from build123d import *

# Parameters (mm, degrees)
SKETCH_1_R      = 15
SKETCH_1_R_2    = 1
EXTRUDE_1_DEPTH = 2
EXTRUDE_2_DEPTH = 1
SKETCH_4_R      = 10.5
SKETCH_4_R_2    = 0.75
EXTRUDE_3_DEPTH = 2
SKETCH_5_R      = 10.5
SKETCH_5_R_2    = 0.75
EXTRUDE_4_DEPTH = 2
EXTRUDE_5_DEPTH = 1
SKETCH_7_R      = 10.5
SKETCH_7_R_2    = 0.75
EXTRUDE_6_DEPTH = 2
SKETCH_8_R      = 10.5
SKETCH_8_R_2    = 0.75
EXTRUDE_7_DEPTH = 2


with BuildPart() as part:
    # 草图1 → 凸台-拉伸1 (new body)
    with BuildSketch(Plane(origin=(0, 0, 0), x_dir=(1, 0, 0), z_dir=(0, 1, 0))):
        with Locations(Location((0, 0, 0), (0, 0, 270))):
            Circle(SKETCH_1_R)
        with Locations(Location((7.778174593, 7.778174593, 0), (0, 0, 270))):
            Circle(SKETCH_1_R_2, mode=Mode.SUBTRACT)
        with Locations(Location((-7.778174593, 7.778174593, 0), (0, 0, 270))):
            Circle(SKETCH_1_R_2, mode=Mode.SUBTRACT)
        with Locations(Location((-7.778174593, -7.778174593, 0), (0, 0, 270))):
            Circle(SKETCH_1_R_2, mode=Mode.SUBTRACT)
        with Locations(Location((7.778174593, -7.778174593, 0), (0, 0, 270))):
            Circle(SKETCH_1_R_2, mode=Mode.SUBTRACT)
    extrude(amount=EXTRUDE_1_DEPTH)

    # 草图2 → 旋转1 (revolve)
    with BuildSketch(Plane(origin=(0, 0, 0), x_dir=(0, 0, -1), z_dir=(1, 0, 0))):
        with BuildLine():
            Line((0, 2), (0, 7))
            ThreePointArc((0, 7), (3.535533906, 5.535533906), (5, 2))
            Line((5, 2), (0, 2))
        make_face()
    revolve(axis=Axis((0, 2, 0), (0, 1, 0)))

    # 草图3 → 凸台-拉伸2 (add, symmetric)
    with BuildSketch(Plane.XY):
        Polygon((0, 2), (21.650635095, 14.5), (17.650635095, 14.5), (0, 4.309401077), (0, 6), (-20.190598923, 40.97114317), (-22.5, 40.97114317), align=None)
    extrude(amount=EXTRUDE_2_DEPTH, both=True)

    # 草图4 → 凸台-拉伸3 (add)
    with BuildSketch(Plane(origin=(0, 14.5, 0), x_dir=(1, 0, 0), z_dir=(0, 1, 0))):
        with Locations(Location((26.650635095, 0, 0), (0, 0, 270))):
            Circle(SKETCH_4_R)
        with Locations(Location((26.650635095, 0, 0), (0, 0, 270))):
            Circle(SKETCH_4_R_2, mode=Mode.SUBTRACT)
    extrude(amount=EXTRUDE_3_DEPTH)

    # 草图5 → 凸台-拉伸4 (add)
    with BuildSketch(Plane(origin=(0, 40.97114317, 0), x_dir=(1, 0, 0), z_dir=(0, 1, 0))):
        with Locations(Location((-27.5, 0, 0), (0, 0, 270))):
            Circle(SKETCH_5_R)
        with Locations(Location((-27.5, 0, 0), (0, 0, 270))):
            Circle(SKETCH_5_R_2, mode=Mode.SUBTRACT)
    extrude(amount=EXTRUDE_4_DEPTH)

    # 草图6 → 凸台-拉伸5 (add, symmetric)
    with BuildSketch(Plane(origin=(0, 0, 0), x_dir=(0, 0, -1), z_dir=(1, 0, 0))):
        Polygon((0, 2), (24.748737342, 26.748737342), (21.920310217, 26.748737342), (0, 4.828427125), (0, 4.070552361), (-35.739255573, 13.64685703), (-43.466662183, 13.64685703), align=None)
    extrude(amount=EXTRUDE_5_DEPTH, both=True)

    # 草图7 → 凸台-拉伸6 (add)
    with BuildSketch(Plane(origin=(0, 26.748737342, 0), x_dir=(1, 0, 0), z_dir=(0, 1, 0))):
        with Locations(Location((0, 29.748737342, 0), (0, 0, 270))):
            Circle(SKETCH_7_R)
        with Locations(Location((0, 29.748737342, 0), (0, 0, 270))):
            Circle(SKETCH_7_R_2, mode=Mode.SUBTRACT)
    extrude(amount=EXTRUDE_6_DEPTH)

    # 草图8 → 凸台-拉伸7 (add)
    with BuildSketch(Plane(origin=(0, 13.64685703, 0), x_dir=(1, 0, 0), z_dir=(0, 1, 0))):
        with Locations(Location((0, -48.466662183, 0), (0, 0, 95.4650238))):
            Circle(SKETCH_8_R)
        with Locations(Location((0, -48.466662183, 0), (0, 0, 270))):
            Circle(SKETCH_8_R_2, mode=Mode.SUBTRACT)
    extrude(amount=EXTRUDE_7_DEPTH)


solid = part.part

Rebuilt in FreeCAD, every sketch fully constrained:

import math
import FreeCAD as App
import Part
import Sketcher
Q = App.Units.Quantity


def add_polygon(sketch, points):
    """Adds a closed chain of lines whose ends are joined by coincident constraints."""
    first, n = sketch.GeometryCount, len(points)
    for a, b in zip(points, points[1:] + points[:1]):
        sketch.addGeometry(Part.LineSegment(App.Vector(*a, 0), App.Vector(*b, 0)), False)
    for i in range(n):
        sketch.addConstraint(Sketcher.Constraint("Coincident", first + i, 2, first + (i + 1) % n, 1))

doc = App.newDocument("Part")
body = doc.addObject("PartDesign::Body", "Body")

# Sketch on XZ plane
sketch1 = body.newObject("Sketcher::SketchObject", "Sketch")
sketch1.AttachmentSupport = (doc.getObject("XZ_Plane"), [""])
sketch1.MapMode = "FlatFace"
sketch1.addGeometry([
    Part.Circle(App.Vector(0, 0, 0), App.Vector(0, 0, 1), 15),  # 0
    Part.Circle(App.Vector(-7.8, -7.8, 0), App.Vector(0, 0, 1), 1),  # 1
    Part.Circle(App.Vector(-7.8, 7.8, 0), App.Vector(0, 0, 1), 1),  # 2
    Part.Circle(App.Vector(7.8, -7.8, 0), App.Vector(0, 0, 1), 1),  # 3
    Part.Circle(App.Vector(7.8, 7.8, 0), App.Vector(0, 0, 1), 1),  # 4
], False)
sketch1.addConstraint([
    Sketcher.Constraint("Coincident", 0, 3, -1, 1),
    Sketcher.Constraint("Equal", 1, 2),
    Sketcher.Constraint("Equal", 2, 3),
    Sketcher.Constraint("Equal", 3, 4),
    Sketcher.Constraint("Symmetric", 2, 3, 3, 3, -1, 1),
    Sketcher.Constraint("Symmetric", 1, 3, 4, 3, -1, 1),
    Sketcher.Constraint("Symmetric", 1, 3, 3, 3, -2),
    Sketcher.Constraint("Diameter", 0, Q("30 mm")),
    Sketcher.Constraint("Diameter", 1, Q("2 mm")),
    Sketcher.Constraint("DistanceY", 1, 3, 2, 3, Q("15.556349 mm")),
    Sketcher.Constraint("DistanceX", 1, 3, 3, 3, Q("15.556349 mm")),
])
pad1 = body.newObject("PartDesign::Pad", "Pad")
pad1.Profile = sketch1
pad1.Length = 2
pad1.Reversed = True

# Sketch on YZ plane
sketch2 = body.newObject("Sketcher::SketchObject", "Sketch001")
sketch2.AttachmentSupport = (doc.getObject("YZ_Plane"), [""])
sketch2.MapMode = "FlatFace"
sketch2.addGeometry([
    Part.LineSegment(App.Vector(7, 0, 0), App.Vector(2, 0, 0)),
    Part.LineSegment(App.Vector(2, 0, 0), App.Vector(2, -5, 0)),
    Part.ArcOfCircle(Part.Circle(App.Vector(2, 0, 0), App.Vector(0, 0, 1), 5), math.radians(-90), math.radians(0)),
], False)
sketch2.addConstraint([
    Sketcher.Constraint("Coincident", 0, 2, 1, 1),
    Sketcher.Constraint("Coincident", 1, 2, 2, 1),
    Sketcher.Constraint("Coincident", 2, 2, 0, 1),
    Sketcher.Constraint("Horizontal", 0),
    Sketcher.Constraint("Vertical", 1),
    Sketcher.Constraint("Coincident", 0, 2, 2, 3),
    Sketcher.Constraint("PointOnObject", 2, 3, -1),
    Sketcher.Constraint("Radius", 2, Q("5 mm")),
    Sketcher.Constraint("DistanceX", -1, 1, 2, 3, Q("2 mm")),
])
revolution = body.newObject("PartDesign::Revolution", "Revolution")
revolution.Profile = sketch2
revolution.ReferenceAxis = (sketch2, ["H_Axis"])
revolution.Angle = 360

# Sketch on XY plane
sketch3 = body.newObject("Sketcher::SketchObject", "Sketch002")
sketch3.AttachmentSupport = (doc.getObject("XY_Plane"), [""])
sketch3.MapMode = "FlatFace"
add_polygon(sketch3, [(0, 2), (21.7, 14.5), (17.7, 14.5), (0, 4.3), (0, 6), (-20.2, 41), (-22.5, 41)])  # lines 0-6
sketch3.addConstraint([
    Sketcher.Constraint("Horizontal", 1),
    Sketcher.Constraint("Vertical", 3),
    Sketcher.Constraint("Horizontal", 5),
    Sketcher.Constraint("PointOnObject", 2, 2, -2),
    Sketcher.Constraint("PointOnObject", 6, 2, -2),
    Sketcher.Constraint("Parallel", 0, 2),
    Sketcher.Constraint("Perpendicular", 2, 4),
    Sketcher.Constraint("Parallel", 4, 6),
    Sketcher.Constraint("DistanceX", 1, 2, 1, 1, Q("4 mm")),
    Sketcher.Constraint("Angle", 0, Q("30 deg")),
    Sketcher.Constraint("Distance", 0, Q("25 mm")),
    Sketcher.Constraint("Distance", 6, Q("45 mm")),
    Sketcher.Constraint("DistanceY", -1, 1, 3, 2, Q("6 mm")),
    Sketcher.Constraint("DistanceY", -1, 1, 6, 2, Q("2 mm")),
])
pad2 = body.newObject("PartDesign::Pad", "Pad001")
pad2.Profile = sketch3
pad2.Length = 2
pad2.Midplane = True

# Sketch on XZ plane
sketch4 = body.newObject("Sketcher::SketchObject", "Sketch003")
sketch4.AttachmentSupport = (doc.getObject("XZ_Plane"), [""])
sketch4.MapMode = "FlatFace"
sketch4.AttachmentOffset = App.Placement(App.Vector(0, 0, -14.5), App.Rotation())
sketch4.addGeometry([
    Part.Circle(App.Vector(26.7, 0, 0), App.Vector(0, 0, 1), 10.5),
    Part.Circle(App.Vector(26.7, 0, 0), App.Vector(0, 0, 1), 0.8),
], False)
sketch4.addConstraint([
    Sketcher.Constraint("Coincident", 1, 3, 0, 3),
    Sketcher.Constraint("PointOnObject", 0, 3, -1),
    Sketcher.Constraint("Diameter", 0, Q("21 mm")),
    Sketcher.Constraint("Diameter", 1, Q("1.5 mm")),
    Sketcher.Constraint("DistanceX", -1, 1, 0, 3, Q("26.650635 mm")),
])
pad3 = body.newObject("PartDesign::Pad", "Pad002")
pad3.Profile = sketch4
pad3.Length = 2
pad3.Reversed = True

# Sketch on XZ plane
sketch5 = body.newObject("Sketcher::SketchObject", "Sketch004")
sketch5.AttachmentSupport = (doc.getObject("XZ_Plane"), [""])
sketch5.MapMode = "FlatFace"
sketch5.AttachmentOffset = App.Placement(App.Vector(0, 0, -40.971143), App.Rotation())
sketch5.addGeometry([
    Part.Circle(App.Vector(-27.5, 0, 0), App.Vector(0, 0, 1), 10.5),
    Part.Circle(App.Vector(-27.5, 0, 0), App.Vector(0, 0, 1), 0.8),
], False)
sketch5.addConstraint([
    Sketcher.Constraint("Coincident", 1, 3, 0, 3),
    Sketcher.Constraint("PointOnObject", 0, 3, -1),
    Sketcher.Constraint("Diameter", 0, Q("21 mm")),
    Sketcher.Constraint("Diameter", 1, Q("1.5 mm")),
    Sketcher.Constraint("DistanceX", 0, 3, -1, 1, Q("27.5 mm")),
])
pad4 = body.newObject("PartDesign::Pad", "Pad003")
pad4.Profile = sketch5
pad4.Length = 2
pad4.Reversed = True

# Sketch on YZ plane
sketch6 = body.newObject("Sketcher::SketchObject", "Sketch005")
sketch6.AttachmentSupport = (doc.getObject("YZ_Plane"), [""])
sketch6.MapMode = "FlatFace"
add_polygon(sketch6, [(2, 0), (26.7, -24.7), (26.7, -21.9), (4.8, 0), (4.1, 0), (13.6, 35.7), (13.6, 43.5)])  # lines 0-6
sketch6.addConstraint([
    Sketcher.Constraint("Vertical", 1),
    Sketcher.Constraint("Horizontal", 3),
    Sketcher.Constraint("Vertical", 5),
    Sketcher.Constraint("PointOnObject", 2, 2, -1),
    Sketcher.Constraint("PointOnObject", 6, 2, -1),
    Sketcher.Constraint("Parallel", 0, 2),
    Sketcher.Constraint("Parallel", 4, 6),
    Sketcher.Constraint("Angle", 0, Q("-45 deg")),
    Sketcher.Constraint("Angle", 4, Q("75 deg")),
    Sketcher.Constraint("Distance", 0, Q("35 mm")),
    Sketcher.Constraint("Distance", 2, Q("31 mm")),
    Sketcher.Constraint("Distance", 4, Q("37 mm")),
    Sketcher.Constraint("Distance", 6, Q("45 mm")),
    Sketcher.Constraint("DistanceX", -1, 1, 6, 2, Q("2 mm")),
])
pad5 = body.newObject("PartDesign::Pad", "Pad004")
pad5.Profile = sketch6
pad5.Length = 2
pad5.Midplane = True

# Sketch on XZ plane
sketch7 = body.newObject("Sketcher::SketchObject", "Sketch006")
sketch7.AttachmentSupport = (doc.getObject("XZ_Plane"), [""])
sketch7.MapMode = "FlatFace"
sketch7.AttachmentOffset = App.Placement(App.Vector(0, 0, -26.748737), App.Rotation())
sketch7.addGeometry([
    Part.Circle(App.Vector(0, -29.7, 0), App.Vector(0, 0, 1), 10.5),
    Part.Circle(App.Vector(0, -29.7, 0), App.Vector(0, 0, 1), 0.8),
], False)
sketch7.addConstraint([
    Sketcher.Constraint("Coincident", 1, 3, 0, 3),
    Sketcher.Constraint("PointOnObject", 0, 3, -2),
    Sketcher.Constraint("Diameter", 0, Q("21 mm")),
    Sketcher.Constraint("Diameter", 1, Q("1.5 mm")),
    Sketcher.Constraint("DistanceY", 0, 3, -1, 1, Q("29.748737 mm")),
])
pad6 = body.newObject("PartDesign::Pad", "Pad005")
pad6.Profile = sketch7
pad6.Length = 2
pad6.Reversed = True

# Sketch on XZ plane
sketch8 = body.newObject("Sketcher::SketchObject", "Sketch007")
sketch8.AttachmentSupport = (doc.getObject("XZ_Plane"), [""])
sketch8.MapMode = "FlatFace"
sketch8.AttachmentOffset = App.Placement(App.Vector(0, 0, -13.646857), App.Rotation())
sketch8.addGeometry([
    Part.Circle(App.Vector(0, 48.5, 0), App.Vector(0, 0, 1), 10.5),
    Part.Circle(App.Vector(0, 48.5, 0), App.Vector(0, 0, 1), 0.8),
], False)
sketch8.addConstraint([
    Sketcher.Constraint("Coincident", 1, 3, 0, 3),
    Sketcher.Constraint("PointOnObject", 0, 3, -2),
    Sketcher.Constraint("Diameter", 0, Q("21 mm")),
    Sketcher.Constraint("Diameter", 1, Q("1.5 mm")),
    Sketcher.Constraint("DistanceY", -1, 1, 0, 3, Q("48.466662 mm")),
])
pad7 = body.newObject("PartDesign::Pad", "Pad006")
pad7.Profile = sketch8
pad7.Length = 2
pad7.Reversed = True

doc.recompute()
